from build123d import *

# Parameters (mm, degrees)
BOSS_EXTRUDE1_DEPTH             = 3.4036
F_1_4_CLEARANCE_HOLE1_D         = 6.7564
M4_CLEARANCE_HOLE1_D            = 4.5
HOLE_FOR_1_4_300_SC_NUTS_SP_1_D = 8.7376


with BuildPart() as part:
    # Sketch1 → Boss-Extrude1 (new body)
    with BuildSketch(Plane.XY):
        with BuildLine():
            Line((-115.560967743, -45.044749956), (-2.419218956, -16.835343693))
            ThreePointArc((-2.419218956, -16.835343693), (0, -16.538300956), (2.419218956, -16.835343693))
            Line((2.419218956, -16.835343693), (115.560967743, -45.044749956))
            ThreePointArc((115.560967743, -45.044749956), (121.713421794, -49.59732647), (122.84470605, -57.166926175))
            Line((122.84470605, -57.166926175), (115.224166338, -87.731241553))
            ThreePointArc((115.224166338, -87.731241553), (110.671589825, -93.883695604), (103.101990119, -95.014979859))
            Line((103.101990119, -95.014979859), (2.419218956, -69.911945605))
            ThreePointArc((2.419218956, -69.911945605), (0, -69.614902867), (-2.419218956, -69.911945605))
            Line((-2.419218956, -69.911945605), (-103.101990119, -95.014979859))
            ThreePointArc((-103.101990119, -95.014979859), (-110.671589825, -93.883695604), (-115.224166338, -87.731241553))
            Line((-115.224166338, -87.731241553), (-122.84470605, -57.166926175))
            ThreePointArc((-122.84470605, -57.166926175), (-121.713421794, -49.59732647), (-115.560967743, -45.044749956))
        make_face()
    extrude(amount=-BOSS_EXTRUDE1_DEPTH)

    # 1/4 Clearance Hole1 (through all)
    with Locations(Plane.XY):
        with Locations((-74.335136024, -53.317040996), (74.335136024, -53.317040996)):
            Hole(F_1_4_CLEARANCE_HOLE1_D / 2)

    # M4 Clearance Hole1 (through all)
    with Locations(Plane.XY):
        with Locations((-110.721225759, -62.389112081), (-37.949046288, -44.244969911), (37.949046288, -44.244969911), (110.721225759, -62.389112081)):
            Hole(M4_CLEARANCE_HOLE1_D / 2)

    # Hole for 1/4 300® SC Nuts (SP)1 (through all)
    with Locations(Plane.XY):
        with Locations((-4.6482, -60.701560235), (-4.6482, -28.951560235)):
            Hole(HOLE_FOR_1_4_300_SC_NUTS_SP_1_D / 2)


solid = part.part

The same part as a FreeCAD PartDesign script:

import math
import FreeCAD as App
import Part
import Sketcher

V = App.Vector
Q = App.Units.Quantity

doc = App.newDocument("Part")
body = doc.addObject("PartDesign::Body", "Body")

# Sketch on XY plane
sketch1 = doc.addObject("Sketcher::SketchObject", "Sketch")
body.addObject(sketch1)
sketch1.AttachmentSupport = (doc.XY_Plane, [""])
sketch1.MapMode = "FlatFace"
sketch1.addGeometry(Part.LineSegment(V(-2.4, -16.8, 0), V(-115.6, -45, 0)), False)
sketch1.addGeometry(Part.ArcOfCircle(Part.Circle(V(-113.1, -54.7, 0), V(0, 0, 1), 10), math.radians(104), math.radians(194)), False)
sketch1.addGeometry(Part.LineSegment(V(-122.8, -57.2, 0), V(-115.2, -87.7, 0)), False)
sketch1.addGeometry(Part.ArcOfCircle(Part.Circle(V(-105.5, -85.3, 0), V(0, 0, 1), 10), math.radians(-166), math.radians(-76)), False)
sketch1.addGeometry(Part.LineSegment(V(-103.1, -95, 0), V(-2.4, -69.9, 0)), False)
sketch1.addGeometry(Part.ArcOfCircle(Part.Circle(V(0, -79.6, 0), V(0, 0, 1), 10), math.radians(76), math.radians(104)), False)
sketch1.addGeometry(Part.LineSegment(V(2.4, -69.9, 0), V(103.1, -95, 0)), False)
sketch1.addGeometry(Part.ArcOfCircle(Part.Circle(V(105.5, -85.3, 0), V(0, 0, 1), 10), math.radians(-104), math.radians(-14)), False)
sketch1.addGeometry(Part.LineSegment(V(115.2, -87.7, 0), V(122.8, -57.2, 0)), False)
sketch1.addGeometry(Part.ArcOfCircle(Part.Circle(V(113.1, -54.7, 0), V(0, 0, 1), 10), math.radians(-14), math.radians(76)), False)
sketch1.addGeometry(Part.LineSegment(V(115.6, -45, 0), V(2.4, -16.8, 0)), False)
sketch1.addGeometry(Part.ArcOfCircle(Part.Circle(V(0, -26.5, 0), V(0, 0, 1), 10), math.radians(76), math.radians(104)), False)
sketch1.addConstraint(Sketcher.Constraint("Tangent", 0, 2, 1, 1))
sketch1.addConstraint(Sketcher.Constraint("Tangent", 1, 2, 2, 1))
sketch1.addConstraint(Sketcher.Constraint("Tangent", 2, 2, 3, 1))
sketch1.addConstraint(Sketcher.Constraint("Tangent", 3, 2, 4, 1))
sketch1.addConstraint(Sketcher.Constraint("Tangent", 4, 2, 5, 2))
sketch1.addConstraint(Sketcher.Constraint("Tangent", 5, 1, 6, 1))
sketch1.addConstraint(Sketcher.Constraint("Tangent", 6, 2, 7, 1))
sketch1.addConstraint(Sketcher.Constraint("Tangent", 7, 2, 8, 1))
sketch1.addConstraint(Sketcher.Constraint("Tangent", 8, 2, 9, 1))
sketch1.addConstraint(Sketcher.Constraint("Tangent", 9, 2, 10, 1))
sketch1.addConstraint(Sketcher.Constraint("Tangent", 10, 2, 11, 1))
sketch1.addConstraint(Sketcher.Constraint("Tangent", 11, 2, 0, 1))
sketch1.addConstraint(Sketcher.Constraint("Equal", 1, 3))
sketch1.addConstraint(Sketcher.Constraint("Equal", 3, 5))
sketch1.addConstraint(Sketcher.Constraint("Equal", 5, 7))
sketch1.addConstraint(Sketcher.Constraint("Equal", 7, 9))
sketch1.addConstraint(Sketcher.Constraint("Equal", 9, 11))
sketch1.addConstraint(Sketcher.Constraint("Symmetric", 3, 3, 7, 3, -2))
sketch1.addConstraint(Sketcher.Constraint("Symmetric", 1, 3, 9, 3, -2))
sketch1.addConstraint(Sketcher.Constraint("PointOnObject", 5, 3, -2))
sketch1.addConstraint(Sketcher.Constraint("PointOnObject", 11, 3, -2))
sketch1.addConstraint(Sketcher.Constraint("Perpendicular", 0, 2))
sketch1.addConstraint(Sketcher.Constraint("Perpendicular", 2, 4))
sketch1.addConstraint(Sketcher.Constraint("Radius", 1, Q("10 mm")))
sketch1.addConstraint(Sketcher.Constraint("Angle", 0, Q("-166 deg")))
sketch1.addConstraint(Sketcher.Constraint("Distance", 2, Q("31.5 mm")))
sketch1.addConstraint(Sketcher.Constraint("DistanceY", 11, 3, -1, 1, Q("26.538301 mm")))
sketch1.addConstraint(Sketcher.Constraint("Distance", 0, Q("116.605428 mm")))
pad1 = doc.addObject("PartDesign::Pad", "Pad")
body.addObject(pad1)
pad1.Profile = sketch1
pad1.Length = 3.4036
pad1.Reversed = True

# Sketch on XY plane
sketch2 = doc.addObject("Sketcher::SketchObject", "Sketch001")
body.addObject(sketch2)
sketch2.AttachmentSupport = (doc.XY_Plane, [""])
sketch2.MapMode = "FlatFace"
sketch2.addGeometry(Part.Circle(V(-74.3, -53.3, 0), V(0, 0, 1), 3.4), False)
sketch2.addGeometry(Part.Circle(V(74.3, -53.3, 0), V(0, 0, 1), 3.4), False)
sketch2.addConstraint(Sketcher.Constraint("Equal", 0, 1))
sketch2.addConstraint(Sketcher.Constraint("Symmetric", 0, 3, 1, 3, -2))
sketch2.addConstraint(Sketcher.Constraint("Diameter", 0, Q("6.7564 mm")))
sketch2.addConstraint(Sketcher.Constraint("DistanceY", 0, 3, -1, 1, Q("53.317041 mm")))
sketch2.addConstraint(Sketcher.Constraint("DistanceX", 0, 3, -1, 1, Q("74.335136 mm")))
doc.recompute()
hole = doc.addObject("PartDesign::Hole", "Hole")
body.addObject(hole)
hole.Profile = sketch2
hole.ThreadType = "None"
hole.Diameter = 6.7564
hole.DepthType = "ThroughAll"

# Sketch on XY plane
sketch3 = doc.addObject("Sketcher::SketchObject", "Sketch002")
body.addObject(sketch3)
sketch3.AttachmentSupport = (doc.XY_Plane, [""])
sketch3.MapMode = "FlatFace"
sketch3.addGeometry(Part.Circle(V(-110.7, -62.4, 0), V(0, 0, 1), 2.2), False)
sketch3.addGeometry(Part.Circle(V(-37.9, -44.2, 0), V(0, 0, 1), 2.2), False)
sketch3.addGeometry(Part.Circle(V(37.9, -44.2, 0), V(0, 0, 1), 2.2), False)
sketch3.addGeometry(Part.Circle(V(110.7, -62.4, 0), V(0, 0, 1), 2.2), False)
sketch3.addConstraint(Sketcher.Constraint("Equal", 0, 1))
sketch3.addConstraint(Sketcher.Constraint("Equal", 1, 2))
sketch3.addConstraint(Sketcher.Constraint("Equal", 2, 3))
sketch3.addConstraint(Sketcher.Constraint("Symmetric", 1, 3, 2, 3, -2))
sketch3.addConstraint(Sketcher.Constraint("Symmetric", 0, 3, 3, 3, -2))
sketch3.addConstraint(Sketcher.Constraint("Diameter", 0, Q("4.5 mm")))
sketch3.addConstraint(Sketcher.Constraint("DistanceY", 1, 3, -1, 1, Q("44.24497 mm")))
sketch3.addConstraint(Sketcher.Constraint("DistanceX", 0, 3, 1, 3, Q("72.772179 mm")))
sketch3.addConstraint(Sketcher.Constraint("DistanceX", 0, 3, 3, 3, Q("221.442452 mm")))
sketch3.addConstraint(Sketcher.Constraint("DistanceY", 0, 3, -1, 1, Q("62.389112 mm")))
doc.recompute()
hole2 = doc.addObject("PartDesign::Hole", "Hole001")
body.addObject(hole2)
hole2.Profile = sketch3
hole2.ThreadType = "None"
hole2.Diameter = 4.5
hole2.DepthType = "ThroughAll"

# Sketch on XY plane
sketch4 = doc.addObject("Sketcher::SketchObject", "Sketch003")
body.addObject(sketch4)
sketch4.AttachmentSupport = (doc.XY_Plane, [""])
sketch4.MapMode = "FlatFace"
sketch4.addGeometry(Part.Circle(V(-4.6, -60.7, 0), V(0, 0, 1), 4.4), False)
sketch4.addGeometry(Part.Circle(V(-4.6, -29, 0), V(0, 0, 1), 4.4), False)
sketch4.addConstraint(Sketcher.Constraint("Equal", 0, 1))
sketch4.addConstraint(Sketcher.Constraint("Vertical", 0, 3, 1, 3))
sketch4.addConstraint(Sketcher.Constraint("Diameter", 0, Q("8.7376 mm")))
sketch4.addConstraint(Sketcher.Constraint("DistanceY", 0, 3, 1, 3, Q("31.75 mm")))
sketch4.addConstraint(Sketcher.Constraint("DistanceX", 0, 3, -1, 1, Q("4.6482 mm")))
sketch4.addConstraint(Sketcher.Constraint("DistanceY", 0, 3, -1, 1, Q("60.70156 mm")))
doc.recompute()
hole3 = doc.addObject("PartDesign::Hole", "Hole002")
body.addObject(hole3)
hole3.Profile = sketch4
hole3.ThreadType = "None"
hole3.Diameter = 8.7376
hole3.DepthType = "ThroughAll"

doc.recompute()
